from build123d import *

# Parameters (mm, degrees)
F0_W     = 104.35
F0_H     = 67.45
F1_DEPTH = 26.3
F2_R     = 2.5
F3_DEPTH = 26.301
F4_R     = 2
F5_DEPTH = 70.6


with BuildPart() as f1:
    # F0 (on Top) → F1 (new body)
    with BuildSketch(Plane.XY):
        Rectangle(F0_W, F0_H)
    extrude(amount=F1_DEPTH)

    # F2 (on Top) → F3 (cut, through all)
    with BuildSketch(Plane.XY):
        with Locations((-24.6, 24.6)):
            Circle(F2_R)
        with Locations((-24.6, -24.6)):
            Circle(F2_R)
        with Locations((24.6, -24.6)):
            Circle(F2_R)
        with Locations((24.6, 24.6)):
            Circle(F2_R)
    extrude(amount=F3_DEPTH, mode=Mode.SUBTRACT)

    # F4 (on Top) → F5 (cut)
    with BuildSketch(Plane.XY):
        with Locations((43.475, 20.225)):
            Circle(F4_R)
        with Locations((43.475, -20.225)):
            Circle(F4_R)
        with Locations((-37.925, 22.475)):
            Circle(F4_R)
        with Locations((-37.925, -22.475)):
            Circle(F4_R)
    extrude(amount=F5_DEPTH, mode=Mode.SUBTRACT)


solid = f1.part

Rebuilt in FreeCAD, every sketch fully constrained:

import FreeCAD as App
import Part
import Sketcher

doc = App.newDocument("Part")
body = doc.addObject("PartDesign::Body", "Body")

# Sketch on XY plane
sketch1 = body.newObject("Sketcher::SketchObject", "Sketch")
sketch1.AttachmentSupport = (doc.getObject("XY_Plane"), [""])
sketch1.MapMode = "FlatFace"
sketch1.addGeometry(Part.LineSegment(App.Vector(-52.175, 33.725, 0), App.Vector(-52.175, -33.725, 0)), False)
sketch1.addGeometry(Part.LineSegment(App.Vector(-52.175, -33.725, 0), App.Vector(52.175, -33.725, 0)), False)
sketch1.addGeometry(Part.LineSegment(App.Vector(52.175, -33.725, 0), App.Vector(52.175, 33.725, 0)), False)
sketch1.addGeometry(Part.LineSegment(App.Vector(52.175, 33.725, 0), App.Vector(-52.175, 33.725, 0)), False)
sketch1.addConstraint(Sketcher.Constraint("Coincident", 0, 2, 1, 1))
sketch1.addConstraint(Sketcher.Constraint("Coincident", 1, 2, 2, 1))
sketch1.addConstraint(Sketcher.Constraint("Coincident", 2, 2, 3, 1))
sketch1.addConstraint(Sketcher.Constraint("Coincident", 3, 2, 0, 1))
sketch1.addConstraint(Sketcher.Constraint("Vertical", 0))
sketch1.addConstraint(Sketcher.Constraint("Horizontal", 1))
sketch1.addConstraint(Sketcher.Constraint("Vertical", 2))
sketch1.addConstraint(Sketcher.Constraint("Horizontal", 3))
sketch1.addConstraint(Sketcher.Constraint("Symmetric", 0, 2, 2, 2, -1, 1))
sketch1.addConstraint(Sketcher.Constraint("DistanceX", 1, 1, 1, 2, 104.35))
sketch1.addConstraint(Sketcher.Constraint("DistanceY", 0, 2, 0, 1, 67.45))
pad1 = body.newObject("PartDesign::Pad", "Pad")
pad1.Profile = sketch1
pad1.Length = 26.3

# Sketch on XY plane
sketch2 = body.newObject("Sketcher::SketchObject", "Sketch001")
sketch2.AttachmentSupport = (doc.getObject("XY_Plane"), [""])
sketch2.MapMode = "FlatFace"
sketch2.addGeometry(Part.Circle(App.Vector(-24.6, 24.6, 0), App.Vector(0, 0, 1), 2.5), False)
sketch2.addGeometry(Part.Circle(App.Vector(-24.6, -24.6, 0), App.Vector(0, 0, 1), 2.5), False)
sketch2.addGeometry(Part.Circle(App.Vector(24.6, -24.6, 0), App.Vector(0, 0, 1), 2.5), False)
sketch2.addGeometry(Part.Circle(App.Vector(24.6, 24.6, 0), App.Vector(0, 0, 1), 2.5), False)
sketch2.addConstraint(Sketcher.Constraint("Equal", 0, 1))
sketch2.addConstraint(Sketcher.Constraint("Equal", 1, 2))
sketch2.addConstraint(Sketcher.Constraint("Equal", 2, 3))
sketch2.addConstraint(Sketcher.Constraint("Symmetric", 0, 3, 2, 3, -1, 1))
sketch2.addConstraint(Sketcher.Constraint("Symmetric", 1, 3, 3, 3, -1, 1))
sketch2.addConstraint(Sketcher.Constraint("Symmetric", 1, 3, 2, 3, -2))
sketch2.addConstraint(Sketcher.Constraint("Diameter", 0, 5.0))
sketch2.addConstraint(Sketcher.Constraint("DistanceX", 0, 3, -1, 1, 24.6))
sketch2.addConstraint(Sketcher.Constraint("DistanceY", -1, 1, 0, 3, 24.6))
pocket1 = body.newObject("PartDesign::Pocket", "Pocket")
pocket1.Profile = sketch2
pocket1.Type = "ThroughAll"
pocket1.Reversed = True

# Sketch on XY plane
sketch3 = body.newObject("Sketcher::SketchObject", "Sketch002")
sketch3.AttachmentSupport = (doc.getObject("XY_Plane"), [""])
sketch3.MapMode = "FlatFace"
sketch3.addGeometry(Part.Circle(App.Vector(43.475, 20.225, 0), App.Vector(0, 0, 1), 2), False)
sketch3.addGeometry(Part.Circle(App.Vector(43.475, -20.225, 0), App.Vector(0, 0, 1), 2), False)
sketch3.addGeometry(Part.Circle(App.Vector(-37.925, 22.475, 0), App.Vector(0, 0, 1), 2), False)
sketch3.addGeometry(Part.Circle(App.Vector(-37.925, -22.475, 0), App.Vector(0, 0, 1), 2), False)
sketch3.addConstraint(Sketcher.Constraint("Equal", 0, 1))
sketch3.addConstraint(Sketcher.Constraint("Equal", 1, 2))
sketch3.addConstraint(Sketcher.Constraint("Equal", 2, 3))
sketch3.addConstraint(Sketcher.Constraint("Symmetric", 0, 3, 1, 3, -1))
sketch3.addConstraint(Sketcher.Constraint("Symmetric", 2, 3, 3, 3, -1))
sketch3.addConstraint(Sketcher.Constraint("Diameter", 0, 4.0))
sketch3.addConstraint(Sketcher.Constraint("DistanceX", 2, 3, 0, 3, 81.4))
sketch3.addConstraint(Sketcher.Constraint("DistanceY", 1, 3, 2, 3, 42.7))
sketch3.addConstraint(Sketcher.Constraint("DistanceY", 1, 3, 0, 3, 40.45))
sketch3.addConstraint(Sketcher.Constraint("DistanceX", -1, 1, 0, 3, 43.475))
pocket2 = body.newObject("PartDesign::Pocket", "Pocket001")
pocket2.Profile = sketch3
pocket2.Length = 70.6
pocket2.Reversed = True

doc.recompute()
